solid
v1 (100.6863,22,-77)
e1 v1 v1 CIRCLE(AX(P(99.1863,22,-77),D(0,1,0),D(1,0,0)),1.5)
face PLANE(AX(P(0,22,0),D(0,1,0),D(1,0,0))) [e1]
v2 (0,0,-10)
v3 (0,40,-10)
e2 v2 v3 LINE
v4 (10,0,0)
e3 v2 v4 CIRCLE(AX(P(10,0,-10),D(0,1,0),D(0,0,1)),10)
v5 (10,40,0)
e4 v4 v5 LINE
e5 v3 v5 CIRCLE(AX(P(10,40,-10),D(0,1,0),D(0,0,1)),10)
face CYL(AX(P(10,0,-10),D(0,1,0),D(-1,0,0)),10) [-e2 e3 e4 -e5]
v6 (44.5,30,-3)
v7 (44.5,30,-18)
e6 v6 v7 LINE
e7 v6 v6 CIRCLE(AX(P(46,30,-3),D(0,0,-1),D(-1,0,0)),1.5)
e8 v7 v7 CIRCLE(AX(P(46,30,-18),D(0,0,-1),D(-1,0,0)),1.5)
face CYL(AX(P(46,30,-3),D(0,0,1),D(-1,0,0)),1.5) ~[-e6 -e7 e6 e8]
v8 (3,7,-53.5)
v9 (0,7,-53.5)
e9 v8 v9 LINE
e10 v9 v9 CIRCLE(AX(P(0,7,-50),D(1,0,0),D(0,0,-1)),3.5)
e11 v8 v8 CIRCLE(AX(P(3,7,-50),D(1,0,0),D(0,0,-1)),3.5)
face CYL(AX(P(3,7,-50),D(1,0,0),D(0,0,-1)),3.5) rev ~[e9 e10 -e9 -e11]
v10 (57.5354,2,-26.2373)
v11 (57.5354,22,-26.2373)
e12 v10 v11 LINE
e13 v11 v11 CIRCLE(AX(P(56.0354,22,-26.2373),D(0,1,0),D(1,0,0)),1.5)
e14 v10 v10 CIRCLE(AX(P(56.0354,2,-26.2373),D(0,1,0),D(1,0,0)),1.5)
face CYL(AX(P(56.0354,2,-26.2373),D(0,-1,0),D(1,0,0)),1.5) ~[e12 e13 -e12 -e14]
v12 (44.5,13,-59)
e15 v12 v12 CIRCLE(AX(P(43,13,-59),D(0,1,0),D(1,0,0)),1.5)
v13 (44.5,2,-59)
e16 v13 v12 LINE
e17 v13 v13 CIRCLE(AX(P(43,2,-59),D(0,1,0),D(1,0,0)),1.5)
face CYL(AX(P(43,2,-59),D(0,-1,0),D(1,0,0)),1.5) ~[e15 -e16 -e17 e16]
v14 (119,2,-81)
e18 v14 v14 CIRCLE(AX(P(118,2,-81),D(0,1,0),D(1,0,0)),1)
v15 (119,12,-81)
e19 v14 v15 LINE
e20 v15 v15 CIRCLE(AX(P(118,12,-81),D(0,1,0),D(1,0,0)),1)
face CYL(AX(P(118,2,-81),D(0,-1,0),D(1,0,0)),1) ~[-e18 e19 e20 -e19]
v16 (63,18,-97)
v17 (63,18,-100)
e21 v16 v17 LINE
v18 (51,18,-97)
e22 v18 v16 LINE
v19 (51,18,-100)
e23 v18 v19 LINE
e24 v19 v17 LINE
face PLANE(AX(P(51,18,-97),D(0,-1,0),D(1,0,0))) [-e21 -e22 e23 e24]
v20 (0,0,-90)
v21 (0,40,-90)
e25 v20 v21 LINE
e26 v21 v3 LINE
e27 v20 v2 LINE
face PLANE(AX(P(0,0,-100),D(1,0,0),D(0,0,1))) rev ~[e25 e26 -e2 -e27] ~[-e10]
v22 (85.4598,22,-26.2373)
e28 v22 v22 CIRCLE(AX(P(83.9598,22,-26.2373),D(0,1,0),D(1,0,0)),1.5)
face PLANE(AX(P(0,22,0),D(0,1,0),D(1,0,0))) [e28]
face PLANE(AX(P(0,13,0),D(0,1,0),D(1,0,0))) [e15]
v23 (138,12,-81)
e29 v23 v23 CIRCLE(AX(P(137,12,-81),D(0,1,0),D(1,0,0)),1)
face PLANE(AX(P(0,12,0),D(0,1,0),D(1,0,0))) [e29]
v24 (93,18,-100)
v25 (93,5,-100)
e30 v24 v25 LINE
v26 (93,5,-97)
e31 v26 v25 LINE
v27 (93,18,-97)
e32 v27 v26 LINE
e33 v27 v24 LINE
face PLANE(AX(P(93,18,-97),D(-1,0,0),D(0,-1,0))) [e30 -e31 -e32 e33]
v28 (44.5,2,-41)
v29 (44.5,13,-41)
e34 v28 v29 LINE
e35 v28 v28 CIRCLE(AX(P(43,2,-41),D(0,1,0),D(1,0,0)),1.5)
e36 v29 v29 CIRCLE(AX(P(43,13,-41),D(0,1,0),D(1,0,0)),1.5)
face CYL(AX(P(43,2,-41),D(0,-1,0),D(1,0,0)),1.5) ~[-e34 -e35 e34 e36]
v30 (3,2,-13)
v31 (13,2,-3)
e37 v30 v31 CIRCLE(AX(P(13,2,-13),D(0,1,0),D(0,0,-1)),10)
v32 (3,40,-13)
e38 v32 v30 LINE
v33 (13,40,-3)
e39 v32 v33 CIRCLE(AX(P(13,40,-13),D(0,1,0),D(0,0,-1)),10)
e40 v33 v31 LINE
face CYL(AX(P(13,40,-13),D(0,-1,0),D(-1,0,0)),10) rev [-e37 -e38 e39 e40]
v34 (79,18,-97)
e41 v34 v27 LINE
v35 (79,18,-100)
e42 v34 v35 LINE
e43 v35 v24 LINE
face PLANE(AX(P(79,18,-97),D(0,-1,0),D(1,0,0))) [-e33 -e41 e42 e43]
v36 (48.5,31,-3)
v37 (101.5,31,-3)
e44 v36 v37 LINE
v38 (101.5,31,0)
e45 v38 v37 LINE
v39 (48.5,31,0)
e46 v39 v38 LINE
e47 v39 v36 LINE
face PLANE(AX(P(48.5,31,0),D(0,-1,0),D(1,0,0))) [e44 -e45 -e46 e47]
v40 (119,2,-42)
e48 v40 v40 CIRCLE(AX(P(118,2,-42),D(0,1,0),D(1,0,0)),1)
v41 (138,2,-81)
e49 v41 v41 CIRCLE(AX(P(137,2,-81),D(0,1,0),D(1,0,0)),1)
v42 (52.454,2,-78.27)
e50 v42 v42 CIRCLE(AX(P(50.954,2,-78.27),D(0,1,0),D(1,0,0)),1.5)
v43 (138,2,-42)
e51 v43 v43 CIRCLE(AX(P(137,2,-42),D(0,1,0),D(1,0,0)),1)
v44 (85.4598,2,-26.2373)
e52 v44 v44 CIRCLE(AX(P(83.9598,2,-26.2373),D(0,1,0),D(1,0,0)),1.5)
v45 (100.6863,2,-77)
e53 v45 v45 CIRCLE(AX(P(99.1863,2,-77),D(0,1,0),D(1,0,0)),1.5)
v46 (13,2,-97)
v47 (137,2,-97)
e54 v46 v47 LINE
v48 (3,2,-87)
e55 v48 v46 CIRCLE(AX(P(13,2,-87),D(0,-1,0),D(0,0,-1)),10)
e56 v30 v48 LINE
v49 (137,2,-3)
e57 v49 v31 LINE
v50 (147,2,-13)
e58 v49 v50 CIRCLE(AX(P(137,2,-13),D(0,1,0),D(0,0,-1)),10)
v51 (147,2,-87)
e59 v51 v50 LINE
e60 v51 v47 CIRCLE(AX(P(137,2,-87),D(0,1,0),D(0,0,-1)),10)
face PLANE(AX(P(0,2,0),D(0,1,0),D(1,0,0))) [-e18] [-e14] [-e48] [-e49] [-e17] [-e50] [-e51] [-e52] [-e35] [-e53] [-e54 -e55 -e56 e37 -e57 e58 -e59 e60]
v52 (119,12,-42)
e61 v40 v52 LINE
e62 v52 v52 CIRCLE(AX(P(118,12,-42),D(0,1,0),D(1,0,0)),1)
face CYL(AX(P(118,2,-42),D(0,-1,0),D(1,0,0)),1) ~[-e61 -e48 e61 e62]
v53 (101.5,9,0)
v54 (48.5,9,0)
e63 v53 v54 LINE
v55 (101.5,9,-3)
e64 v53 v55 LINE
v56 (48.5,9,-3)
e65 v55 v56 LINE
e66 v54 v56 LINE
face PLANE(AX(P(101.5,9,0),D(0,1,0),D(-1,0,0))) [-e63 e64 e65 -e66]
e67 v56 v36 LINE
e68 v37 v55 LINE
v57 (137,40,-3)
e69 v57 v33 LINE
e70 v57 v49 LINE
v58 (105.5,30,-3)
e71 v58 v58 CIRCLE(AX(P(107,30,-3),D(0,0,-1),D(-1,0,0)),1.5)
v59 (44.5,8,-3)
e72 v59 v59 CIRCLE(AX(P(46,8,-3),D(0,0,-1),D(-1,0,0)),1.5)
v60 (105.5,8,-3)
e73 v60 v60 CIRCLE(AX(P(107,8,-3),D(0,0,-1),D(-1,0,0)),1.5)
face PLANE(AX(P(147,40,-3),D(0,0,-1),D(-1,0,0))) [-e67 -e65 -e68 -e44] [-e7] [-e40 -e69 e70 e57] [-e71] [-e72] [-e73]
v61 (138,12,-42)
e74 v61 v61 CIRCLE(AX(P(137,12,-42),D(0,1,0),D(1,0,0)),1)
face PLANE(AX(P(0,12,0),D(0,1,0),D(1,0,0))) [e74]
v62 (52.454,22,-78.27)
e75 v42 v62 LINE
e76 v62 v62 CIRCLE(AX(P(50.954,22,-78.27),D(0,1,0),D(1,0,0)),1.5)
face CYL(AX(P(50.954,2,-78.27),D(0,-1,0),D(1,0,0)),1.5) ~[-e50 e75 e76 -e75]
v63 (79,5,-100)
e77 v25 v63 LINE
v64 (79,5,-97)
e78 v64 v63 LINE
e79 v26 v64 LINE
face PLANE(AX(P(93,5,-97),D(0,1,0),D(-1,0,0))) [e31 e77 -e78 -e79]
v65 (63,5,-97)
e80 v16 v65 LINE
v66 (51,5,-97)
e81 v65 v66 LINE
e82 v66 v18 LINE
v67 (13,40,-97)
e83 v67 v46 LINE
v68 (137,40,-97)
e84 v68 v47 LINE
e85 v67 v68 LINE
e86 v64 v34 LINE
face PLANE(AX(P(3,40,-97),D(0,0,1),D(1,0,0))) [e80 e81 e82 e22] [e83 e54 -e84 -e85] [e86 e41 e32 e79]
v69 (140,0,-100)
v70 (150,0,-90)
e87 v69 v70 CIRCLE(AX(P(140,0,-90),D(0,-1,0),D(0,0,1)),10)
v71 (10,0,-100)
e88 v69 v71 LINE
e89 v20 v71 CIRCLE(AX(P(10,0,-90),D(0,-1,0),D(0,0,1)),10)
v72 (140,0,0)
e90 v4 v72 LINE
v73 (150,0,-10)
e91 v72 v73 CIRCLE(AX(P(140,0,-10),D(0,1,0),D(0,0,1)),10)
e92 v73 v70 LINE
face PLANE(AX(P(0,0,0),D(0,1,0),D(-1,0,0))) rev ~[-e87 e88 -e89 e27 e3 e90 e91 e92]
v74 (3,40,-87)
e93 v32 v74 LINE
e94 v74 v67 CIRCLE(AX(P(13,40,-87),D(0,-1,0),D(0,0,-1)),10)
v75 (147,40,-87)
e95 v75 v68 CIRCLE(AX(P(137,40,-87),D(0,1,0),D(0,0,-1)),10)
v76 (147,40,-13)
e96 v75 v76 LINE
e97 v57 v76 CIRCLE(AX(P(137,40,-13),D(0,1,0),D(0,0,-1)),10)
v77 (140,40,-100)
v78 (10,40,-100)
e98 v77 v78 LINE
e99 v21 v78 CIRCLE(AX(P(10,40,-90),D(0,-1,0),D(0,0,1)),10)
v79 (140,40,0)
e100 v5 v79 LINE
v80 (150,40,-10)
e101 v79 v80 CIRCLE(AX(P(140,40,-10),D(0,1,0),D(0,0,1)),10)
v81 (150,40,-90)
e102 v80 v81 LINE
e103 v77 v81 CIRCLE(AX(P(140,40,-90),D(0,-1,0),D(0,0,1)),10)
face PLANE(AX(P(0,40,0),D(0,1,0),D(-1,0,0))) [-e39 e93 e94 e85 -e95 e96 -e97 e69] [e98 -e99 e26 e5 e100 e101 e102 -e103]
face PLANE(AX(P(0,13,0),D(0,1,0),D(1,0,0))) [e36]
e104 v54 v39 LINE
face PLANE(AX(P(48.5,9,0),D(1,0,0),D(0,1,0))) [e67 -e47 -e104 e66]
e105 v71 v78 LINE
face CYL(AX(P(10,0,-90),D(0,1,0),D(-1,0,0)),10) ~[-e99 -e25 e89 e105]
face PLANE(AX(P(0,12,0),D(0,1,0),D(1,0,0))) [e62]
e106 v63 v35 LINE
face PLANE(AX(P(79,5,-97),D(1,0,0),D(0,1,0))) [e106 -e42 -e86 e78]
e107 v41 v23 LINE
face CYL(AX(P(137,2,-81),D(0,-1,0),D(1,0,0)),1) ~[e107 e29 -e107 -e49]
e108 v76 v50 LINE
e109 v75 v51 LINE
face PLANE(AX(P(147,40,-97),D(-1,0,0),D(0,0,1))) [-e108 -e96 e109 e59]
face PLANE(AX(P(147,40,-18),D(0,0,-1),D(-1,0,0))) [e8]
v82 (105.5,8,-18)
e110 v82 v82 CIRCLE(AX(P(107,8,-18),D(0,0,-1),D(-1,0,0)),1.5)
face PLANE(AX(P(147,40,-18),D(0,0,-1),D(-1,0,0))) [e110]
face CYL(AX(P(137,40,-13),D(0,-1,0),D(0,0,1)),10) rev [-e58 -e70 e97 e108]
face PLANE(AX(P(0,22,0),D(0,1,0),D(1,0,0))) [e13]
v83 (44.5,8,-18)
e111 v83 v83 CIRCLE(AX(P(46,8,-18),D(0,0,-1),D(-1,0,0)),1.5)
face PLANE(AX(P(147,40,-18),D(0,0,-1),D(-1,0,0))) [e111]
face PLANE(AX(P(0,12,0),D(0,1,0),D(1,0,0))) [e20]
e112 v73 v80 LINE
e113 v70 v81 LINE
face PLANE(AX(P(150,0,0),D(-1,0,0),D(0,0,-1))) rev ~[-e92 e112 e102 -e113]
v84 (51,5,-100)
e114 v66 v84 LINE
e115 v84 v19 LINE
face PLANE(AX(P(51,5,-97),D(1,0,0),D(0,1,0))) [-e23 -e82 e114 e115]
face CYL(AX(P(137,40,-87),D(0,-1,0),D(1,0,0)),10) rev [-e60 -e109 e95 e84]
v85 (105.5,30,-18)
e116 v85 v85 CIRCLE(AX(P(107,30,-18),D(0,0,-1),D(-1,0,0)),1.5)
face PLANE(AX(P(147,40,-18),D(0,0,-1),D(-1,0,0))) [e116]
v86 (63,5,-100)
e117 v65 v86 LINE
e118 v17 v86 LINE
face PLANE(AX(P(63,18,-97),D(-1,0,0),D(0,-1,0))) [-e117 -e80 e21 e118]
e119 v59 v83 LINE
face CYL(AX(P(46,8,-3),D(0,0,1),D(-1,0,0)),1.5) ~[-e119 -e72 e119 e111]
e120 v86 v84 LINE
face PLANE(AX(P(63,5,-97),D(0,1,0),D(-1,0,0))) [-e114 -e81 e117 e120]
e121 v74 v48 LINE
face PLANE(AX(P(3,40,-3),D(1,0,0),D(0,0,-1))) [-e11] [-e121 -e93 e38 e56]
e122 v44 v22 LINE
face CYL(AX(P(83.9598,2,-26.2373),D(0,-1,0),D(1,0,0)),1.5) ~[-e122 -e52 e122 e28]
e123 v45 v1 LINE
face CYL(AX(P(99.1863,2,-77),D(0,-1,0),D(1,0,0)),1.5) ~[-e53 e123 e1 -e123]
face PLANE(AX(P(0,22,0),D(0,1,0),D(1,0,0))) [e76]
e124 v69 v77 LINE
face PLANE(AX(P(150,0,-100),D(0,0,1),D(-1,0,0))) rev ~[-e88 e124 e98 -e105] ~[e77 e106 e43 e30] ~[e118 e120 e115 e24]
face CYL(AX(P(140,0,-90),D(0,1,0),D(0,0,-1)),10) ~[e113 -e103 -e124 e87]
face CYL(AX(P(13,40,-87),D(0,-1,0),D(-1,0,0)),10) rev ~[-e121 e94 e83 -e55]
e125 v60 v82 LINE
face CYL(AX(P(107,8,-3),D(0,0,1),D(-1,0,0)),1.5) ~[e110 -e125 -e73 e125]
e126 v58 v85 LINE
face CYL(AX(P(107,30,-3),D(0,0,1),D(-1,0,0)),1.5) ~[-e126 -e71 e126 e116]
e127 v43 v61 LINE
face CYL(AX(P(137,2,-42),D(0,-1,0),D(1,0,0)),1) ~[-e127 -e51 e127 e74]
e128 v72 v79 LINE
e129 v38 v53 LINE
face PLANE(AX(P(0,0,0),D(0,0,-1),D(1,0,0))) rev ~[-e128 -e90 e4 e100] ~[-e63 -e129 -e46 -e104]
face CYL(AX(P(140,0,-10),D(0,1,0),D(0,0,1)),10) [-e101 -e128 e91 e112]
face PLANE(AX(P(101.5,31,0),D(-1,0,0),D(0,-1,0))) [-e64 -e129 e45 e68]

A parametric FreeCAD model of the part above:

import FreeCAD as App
import Part
import Sketcher

V = App.Vector
Q = App.Units.Quantity


def edges_at(feature, points):
    """Names of the edges that pass closest to the given points."""
    edges = feature.Shape.Edges
    near = lambda p: min(range(len(edges)), key=lambda i: edges[i].distToShape(Part.Vertex(*p))[0])
    return sorted({f"Edge{near(p) + 1}" for p in points})


def add_polygon(sketch, points):
    """Adds a closed chain of lines whose ends are joined by coincident constraints."""
    first, n = sketch.GeometryCount, len(points)
    for a, b in zip(points, points[1:] + points[:1]):
        sketch.addGeometry(Part.LineSegment(App.Vector(*a, 0), App.Vector(*b, 0)), False)
    for i in range(n):
        sketch.addConstraint(Sketcher.Constraint("Coincident", first + i, 2, first + (i + 1) % n, 1))

doc = App.newDocument("Part")
params = doc.addObject("Spreadsheet::Sheet", "Params")
for row, (alias, value) in enumerate([
    ("sketch1_width", "150 mm"),
    ("sketch1_height", "100 mm"),
    ("pad1_length", "40 mm"),
    ("sketch2_width", "144 mm"),
    ("sketch2_height", "94 mm"),
    ("pocket1_length", "38 mm"),
    ("sketch3_width", "53 mm"),
    ("sketch3_height", "22 mm"),
    ("pocket2_length", "3 mm"),
    ("sketch4_diameter", "3 mm"),
    ("pad2_length", "15 mm"),
    ("fillet_radius", "10 mm"),
    ("sketch5_diameter", "3 mm"),
    ("pad3_length", "20 mm"),
    ("sketch6_width", "14 mm"),
    ("sketch6_width2", "12 mm"),
    ("sketch6_height", "13 mm"),
    ("sketch7_diameter", "3 mm"),
    ("pad4_length", "11 mm"),
    ("sketch8_diameter", "7 mm"),
    ("sketch9_diameter", "2 mm"),
    ("pad5_length", "10 mm"),
], start=1):
    params.set(f"A{row}", alias)
    params.set(f"B{row}", "=" + value)
    params.setAlias(f"B{row}", alias)

body = doc.addObject("PartDesign::Body", "Body")

# Sketch on XZ plane
sketch1 = doc.addObject("Sketcher::SketchObject", "Sketch")
body.addObject(sketch1)
sketch1.AttachmentSupport = (doc.XZ_Plane, [""])
sketch1.MapMode = "FlatFace"
add_polygon(sketch1, [(0, -100), (0, 0), (150, 0), (150, -100)])  # lines 0-3
sketch1.addConstraint(Sketcher.Constraint("Vertical", 0))
sketch1.addConstraint(Sketcher.Constraint("Horizontal", 1))
sketch1.addConstraint(Sketcher.Constraint("Vertical", 2))
sketch1.addConstraint(Sketcher.Constraint("Horizontal", 3))
sketch1.addConstraint(Sketcher.Constraint("Coincident", 0, 2, -1, 1))
sketch1.addConstraint(Sketcher.Constraint("DistanceX", 1, 1, 1, 2, Q("150 mm")))
sketch1.addConstraint(Sketcher.Constraint("DistanceY", 0, 1, 0, 2, Q("100 mm")))
sketch1.setExpression("Constraints[9]", "Params.sketch1_width")
sketch1.setExpression("Constraints[10]", "Params.sketch1_height")
pad1 = doc.addObject("PartDesign::Pad", "Pad")
body.addObject(pad1)
pad1.Profile = sketch1
pad1.setExpression("Length", "Params.pad1_length")
pad1.Reversed = True

# Sketch on XZ plane
sketch2 = doc.addObject("Sketcher::SketchObject", "Sketch001")
body.addObject(sketch2)
sketch2.AttachmentSupport = (doc.XZ_Plane, [""])
sketch2.MapMode = "FlatFace"
sketch2.AttachmentOffset = App.Placement(V(0, 0, -40), App.Rotation())
add_polygon(sketch2, [(147, -97), (3, -97), (3, -3), (147, -3)])  # lines 0-3
sketch2.addConstraint(Sketcher.Constraint("Horizontal", 0))
sketch2.addConstraint(Sketcher.Constraint("Vertical", 1))
sketch2.addConstraint(Sketcher.Constraint("Horizontal", 2))
sketch2.addConstraint(Sketcher.Constraint("Vertical", 3))
sketch2.addConstraint(Sketcher.Constraint("DistanceX", 0, 2, 0, 1, Q("144 mm")))
sketch2.addConstraint(Sketcher.Constraint("DistanceY", 1, 1, 1, 2, Q("94 mm")))
sketch2.addConstraint(Sketcher.Constraint("DistanceX", -1, 1, 0, 2, Q("3 mm")))
sketch2.addConstraint(Sketcher.Constraint("DistanceY", 1, 2, -1, 1, Q("3 mm")))
sketch2.setExpression("Constraints[8]", "Params.sketch2_width")
sketch2.setExpression("Constraints[9]", "Params.sketch2_height")
pocket1 = doc.addObject("PartDesign::Pocket", "Pocket")
body.addObject(pocket1)
pocket1.Profile = sketch2
pocket1.setExpression("Length", "Params.pocket1_length")
pocket1.Reversed = True

# Sketch on XY plane
sketch3 = doc.addObject("Sketcher::SketchObject", "Sketch002")
body.addObject(sketch3)
sketch3.AttachmentSupport = (doc.XY_Plane, [""])
sketch3.MapMode = "FlatFace"
add_polygon(sketch3, [(101.5, 31), (48.5, 31), (48.5, 9), (101.5, 9)])  # lines 0-3
sketch3.addConstraint(Sketcher.Constraint("Horizontal", 0))
sketch3.addConstraint(Sketcher.Constraint("Vertical", 1))
sketch3.addConstraint(Sketcher.Constraint("Horizontal", 2))
sketch3.addConstraint(Sketcher.Constraint("Vertical", 3))
sketch3.addConstraint(Sketcher.Constraint("DistanceX", 0, 2, 0, 1, Q("53 mm")))
sketch3.addConstraint(Sketcher.Constraint("DistanceY", 1, 2, 1, 1, Q("22 mm")))
sketch3.addConstraint(Sketcher.Constraint("DistanceY", -1, 1, 1, 2, Q("9 mm")))
sketch3.addConstraint(Sketcher.Constraint("DistanceX", -1, 1, 0, 2, Q("48.5 mm")))
sketch3.setExpression("Constraints[8]", "Params.sketch3_width")
sketch3.setExpression("Constraints[9]", "Params.sketch3_height")
pocket2 = doc.addObject("PartDesign::Pocket", "Pocket001")
body.addObject(pocket2)
pocket2.Profile = sketch3
pocket2.setExpression("Length", "Params.pocket2_length")

# Sketch on XY plane
sketch4 = doc.addObject("Sketcher::SketchObject", "Sketch003")
body.addObject(sketch4)
sketch4.AttachmentSupport = (doc.XY_Plane, [""])
sketch4.MapMode = "FlatFace"
sketch4.AttachmentOffset = App.Placement(V(0, 0, -3), App.Rotation())
sketch4.addGeometry(Part.Circle(V(46, 30, 0), V(0, 0, 1), 1.5), False)
sketch4.addGeometry(Part.Circle(V(107, 30, 0), V(0, 0, 1), 1.5), False)
sketch4.addGeometry(Part.Circle(V(107, 8, 0), V(0, 0, 1), 1.5), False)
sketch4.addGeometry(Part.Circle(V(46, 8, 0), V(0, 0, 1), 1.5), False)
sketch4.addConstraint(Sketcher.Constraint("Equal", 0, 1))
sketch4.addConstraint(Sketcher.Constraint("Equal", 1, 2))
sketch4.addConstraint(Sketcher.Constraint("Equal", 2, 3))
sketch4.addConstraint(Sketcher.Constraint("Horizontal", 0, 3, 1, 3))
sketch4.addConstraint(Sketcher.Constraint("Horizontal", 2, 3, 3, 3))
sketch4.addConstraint(Sketcher.Constraint("Vertical", 1, 3, 2, 3))
sketch4.addConstraint(Sketcher.Constraint("Vertical", 0, 3, 3, 3))
sketch4.addConstraint(Sketcher.Constraint("Diameter", 0, Q("3 mm")))
sketch4.addConstraint(Sketcher.Constraint("DistanceX", -1, 1, 0, 3, Q("46 mm")))
sketch4.addConstraint(Sketcher.Constraint("DistanceY", -1, 1, 0, 3, Q("30 mm")))
sketch4.addConstraint(Sketcher.Constraint("DistanceX", -1, 1, 1, 3, Q("107 mm")))
sketch4.addConstraint(Sketcher.Constraint("DistanceY", -1, 1, 2, 3, Q("8 mm")))
sketch4.setExpression("Constraints[7]", "Params.sketch4_diameter")
pad2 = doc.addObject("PartDesign::Pad", "Pad001")
body.addObject(pad2)
pad2.Profile = sketch4
pad2.setExpression("Length", "Params.pad2_length")
pad2.Reversed = True
doc.recompute()

fillet = doc.addObject("PartDesign::Fillet", "Fillet")
body.addObject(fillet)
fillet.Base = (pad2, edges_at(pad2, [
    (150, 20, 0),
    (150, 20, -100),
    (3, 21, -97),
    (0, 20, -100),
    (0, 20, 0),
    (3, 21, -3),
    (147, 21, -3),
    (147, 21, -97),
]))
fillet.setExpression("Radius", "Params.fillet_radius")

# Sketch on XZ plane
sketch5 = doc.addObject("Sketcher::SketchObject", "Sketch004")
body.addObject(sketch5)
sketch5.AttachmentSupport = (doc.XZ_Plane, [""])
sketch5.MapMode = "FlatFace"
sketch5.AttachmentOffset = App.Placement(V(0, 0, -2), App.Rotation())
sketch5.addGeometry(Part.Circle(V(50.954, -78.27, 0), V(0, 0, 1), 1.5), False)
sketch5.addGeometry(Part.Circle(V(99.1863, -77, 0), V(0, 0, 1), 1.5), False)
sketch5.addGeometry(Part.Circle(V(56.0354, -26.2373, 0), V(0, 0, 1), 1.5), False)
sketch5.addGeometry(Part.Circle(V(83.9598, -26.2373, 0), V(0, 0, 1), 1.5), False)
sketch5.addConstraint(Sketcher.Constraint("Equal", 0, 1))
sketch5.addConstraint(Sketcher.Constraint("Equal", 1, 2))
sketch5.addConstraint(Sketcher.Constraint("Equal", 2, 3))
sketch5.addConstraint(Sketcher.Constraint("Horizontal", 2, 3, 3, 3))
sketch5.addConstraint(Sketcher.Constraint("Diameter", 0, Q("3 mm")))
sketch5.addConstraint(Sketcher.Constraint("DistanceY", 1, 3, -1, 1, Q("77 mm")))
sketch5.addConstraint(Sketcher.Constraint("DistanceY", 0, 3, -1, 1, Q("78.27 mm")))
sketch5.addConstraint(Sketcher.Constraint("DistanceX", -1, 1, 0, 3, Q("50.954 mm")))
sketch5.addConstraint(Sketcher.Constraint("DistanceX", 2, 3, 1, 3, Q("43.151 mm")))
sketch5.addConstraint(Sketcher.Constraint("DistanceX", -1, 1, 1, 3, Q("99.1863 mm")))
sketch5.addConstraint(Sketcher.Constraint("DistanceY", 2, 3, -1, 1, Q("26.2373 mm")))
sketch5.addConstraint(Sketcher.Constraint("DistanceX", -1, 1, 3, 3, Q("83.9598 mm")))
sketch5.setExpression("Constraints[4]", "Params.sketch5_diameter")
pad3 = doc.addObject("PartDesign::Pad", "Pad002")
body.addObject(pad3)
pad3.Profile = sketch5
pad3.setExpression("Length", "Params.pad3_length")
pad3.Reversed = True

# Sketch on XY plane
sketch6 = doc.addObject("Sketcher::SketchObject", "Sketch005")
body.addObject(sketch6)
sketch6.AttachmentSupport = (doc.XY_Plane, [""])
sketch6.MapMode = "FlatFace"
sketch6.AttachmentOffset = App.Placement(V(0, 0, -97), App.Rotation())
add_polygon(sketch6, [(79, 5), (93, 5), (93, 18), (79, 18)])  # lines 0-3
add_polygon(sketch6, [(63, 18), (51, 18), (51, 5), (63, 5)])  # lines 4-7
sketch6.addConstraint(Sketcher.Constraint("Horizontal", 0))
sketch6.addConstraint(Sketcher.Constraint("Vertical", 1))
sketch6.addConstraint(Sketcher.Constraint("Horizontal", 2))
sketch6.addConstraint(Sketcher.Constraint("Vertical", 3))
sketch6.addConstraint(Sketcher.Constraint("Horizontal", 4))
sketch6.addConstraint(Sketcher.Constraint("Vertical", 5))
sketch6.addConstraint(Sketcher.Constraint("Horizontal", 6))
sketch6.addConstraint(Sketcher.Constraint("Vertical", 7))
sketch6.addConstraint(Sketcher.Constraint("Horizontal", 2, 2, 4, 2))
sketch6.addConstraint(Sketcher.Constraint("Horizontal", 3, 2, 5, 2))
sketch6.addConstraint(Sketcher.Constraint("DistanceX", 0, 1, 0, 2, Q("14 mm")))
sketch6.addConstraint(Sketcher.Constraint("DistanceX", 4, 2, 4, 1, Q("12 mm")))
sketch6.addConstraint(Sketcher.Constraint("DistanceY", 1, 1, 1, 2, Q("13 mm")))
sketch6.addConstraint(Sketcher.Constraint("DistanceX", 6, 2, 3, 2, Q("16 mm")))
sketch6.addConstraint(Sketcher.Constraint("DistanceX", -1, 1, 0, 2, Q("93 mm")))
sketch6.addConstraint(Sketcher.Constraint("DistanceY", -1, 1, 0, 2, Q("5 mm")))
sketch6.setExpression("Constraints[18]", "Params.sketch6_width")
sketch6.setExpression("Constraints[19]", "Params.sketch6_width2")
sketch6.setExpression("Constraints[20]", "Params.sketch6_height")
pocket3 = doc.addObject("PartDesign::Pocket", "Pocket002")
body.addObject(pocket3)
pocket3.Profile = sketch6
pocket3.Type = "ThroughAll"

# Sketch on XZ plane
sketch7 = doc.addObject("Sketcher::SketchObject", "Sketch006")
body.addObject(sketch7)
sketch7.AttachmentSupport = (doc.XZ_Plane, [""])
sketch7.MapMode = "FlatFace"
sketch7.AttachmentOffset = App.Placement(V(0, 0, -2), App.Rotation())
sketch7.addGeometry(Part.Circle(V(43, -59, 0), V(0, 0, 1), 1.5), False)
sketch7.addGeometry(Part.Circle(V(43, -41, 0), V(0, 0, 1), 1.5), False)
sketch7.addConstraint(Sketcher.Constraint("Equal", 0, 1))
sketch7.addConstraint(Sketcher.Constraint("Vertical", 0, 3, 1, 3))
sketch7.addConstraint(Sketcher.Constraint("Diameter", 0, Q("3 mm")))
sketch7.addConstraint(Sketcher.Constraint("DistanceX", -1, 1, 0, 3, Q("43 mm")))
sketch7.addConstraint(Sketcher.Constraint("DistanceY", 0, 3, -1, 1, Q("59 mm")))
sketch7.addConstraint(Sketcher.Constraint("DistanceY", 1, 3, -1, 1, Q("41 mm")))
sketch7.setExpression("Constraints[2]", "Params.sketch7_diameter")
pad4 = doc.addObject("PartDesign::Pad", "Pad003")
body.addObject(pad4)
pad4.Profile = sketch7
pad4.setExpression("Length", "Params.pad4_length")
pad4.Reversed = True

# Sketch on YZ plane
sketch8 = doc.addObject("Sketcher::SketchObject", "Sketch007")
body.addObject(sketch8)
sketch8.AttachmentSupport = (doc.YZ_Plane, [""])
sketch8.MapMode = "FlatFace"
sketch8.AttachmentOffset = App.Placement(V(0, 0, 3), App.Rotation())
sketch8.addGeometry(Part.Circle(V(7, -50, 0), V(0, 0, 1), 3.5), False)
sketch8.addConstraint(Sketcher.Constraint("Diameter", 0, Q("7 mm")))
sketch8.addConstraint(Sketcher.Constraint("DistanceX", -1, 1, 0, 3, Q("7 mm")))
sketch8.addConstraint(Sketcher.Constraint("DistanceY", 0, 3, -1, 1, Q("50 mm")))
sketch8.setExpression("Constraints[0]", "Params.sketch8_diameter")
pocket4 = doc.addObject("PartDesign::Pocket", "Pocket003")
body.addObject(pocket4)
pocket4.Profile = sketch8
pocket4.Type = "ThroughAll"

# Sketch on XZ plane
sketch9 = doc.addObject("Sketcher::SketchObject", "Sketch008")
body.addObject(sketch9)
sketch9.AttachmentSupport = (doc.XZ_Plane, [""])
sketch9.MapMode = "FlatFace"
sketch9.AttachmentOffset = App.Placement(V(0, 0, -2), App.Rotation())
sketch9.addGeometry(Part.Circle(V(118, -81, 0), V(0, 0, 1), 1), False)
sketch9.addGeometry(Part.Circle(V(137, -81, 0), V(0, 0, 1), 1), False)
sketch9.addGeometry(Part.Circle(V(118, -42, 0), V(0, 0, 1), 1), False)
sketch9.addGeometry(Part.Circle(V(137, -42, 0), V(0, 0, 1), 1), False)
sketch9.addConstraint(Sketcher.Constraint("Equal", 0, 1))
sketch9.addConstraint(Sketcher.Constraint("Equal", 1, 2))
sketch9.addConstraint(Sketcher.Constraint("Equal", 2, 3))
sketch9.addConstraint(Sketcher.Constraint("Horizontal", 0, 3, 1, 3))
sketch9.addConstraint(Sketcher.Constraint("Horizontal", 2, 3, 3, 3))
sketch9.addConstraint(Sketcher.Constraint("Vertical", 0, 3, 2, 3))
sketch9.addConstraint(Sketcher.Constraint("Vertical", 1, 3, 3, 3))
sketch9.addConstraint(Sketcher.Constraint("Diameter", 0, Q("2 mm")))
sketch9.addConstraint(Sketcher.Constraint("DistanceX", -1, 1, 0, 3, Q("118 mm")))
sketch9.addConstraint(Sketcher.Constraint("DistanceY", 0, 3, -1, 1, Q("81 mm")))
sketch9.addConstraint(Sketcher.Constraint("DistanceX", -1, 1, 1, 3, Q("137 mm")))
sketch9.addConstraint(Sketcher.Constraint("DistanceY", 2, 3, -1, 1, Q("42 mm")))
sketch9.setExpression("Constraints[7]", "Params.sketch9_diameter")
pad5 = doc.addObject("PartDesign::Pad", "Pad004")
body.addObject(pad5)
pad5.Profile = sketch9
pad5.setExpression("Length", "Params.pad5_length")
pad5.Reversed = True

doc.recompute()
